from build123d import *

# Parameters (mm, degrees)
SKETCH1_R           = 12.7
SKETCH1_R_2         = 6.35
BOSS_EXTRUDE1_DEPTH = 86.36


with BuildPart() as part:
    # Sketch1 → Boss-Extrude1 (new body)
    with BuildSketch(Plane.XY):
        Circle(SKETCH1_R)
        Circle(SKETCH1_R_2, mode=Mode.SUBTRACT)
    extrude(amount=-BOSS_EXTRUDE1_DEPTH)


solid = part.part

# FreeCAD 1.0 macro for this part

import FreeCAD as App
import Part
import Sketcher
Q = App.Units.Quantity

doc = App.newDocument("Part")
body = doc.addObject("PartDesign::Body", "Body")

# Sketch on XY plane
sketch1 = body.newObject("Sketcher::SketchObject", "Sketch")
sketch1.AttachmentSupport = (doc.getObject("XY_Plane"), [""])
sketch1.MapMode = "FlatFace"
sketch1.addGeometry(Part.Circle(App.Vector(0, 0, 0), App.Vector(0, 0, 1), 12.7), False)
sketch1.addGeometry(Part.Circle(App.Vector(0, 0, 0), App.Vector(0, 0, 1), 6.35), False)
sketch1.addConstraint(Sketcher.Constraint("Coincident", 0, 3, -1, 1))
sketch1.addConstraint(Sketcher.Constraint("Coincident", 1, 3, -1, 1))
sketch1.addConstraint(Sketcher.Constraint("Diameter", 0, Q("1 in")))
sketch1.addConstraint(Sketcher.Constraint("Diameter", 1, Q("0.5 in")))
pad1 = body.newObject("PartDesign::Pad", "Pad")
pad1.Profile = sketch1
pad1.Length = Q("3.4 in")
pad1.Reversed = True

doc.recompute()
